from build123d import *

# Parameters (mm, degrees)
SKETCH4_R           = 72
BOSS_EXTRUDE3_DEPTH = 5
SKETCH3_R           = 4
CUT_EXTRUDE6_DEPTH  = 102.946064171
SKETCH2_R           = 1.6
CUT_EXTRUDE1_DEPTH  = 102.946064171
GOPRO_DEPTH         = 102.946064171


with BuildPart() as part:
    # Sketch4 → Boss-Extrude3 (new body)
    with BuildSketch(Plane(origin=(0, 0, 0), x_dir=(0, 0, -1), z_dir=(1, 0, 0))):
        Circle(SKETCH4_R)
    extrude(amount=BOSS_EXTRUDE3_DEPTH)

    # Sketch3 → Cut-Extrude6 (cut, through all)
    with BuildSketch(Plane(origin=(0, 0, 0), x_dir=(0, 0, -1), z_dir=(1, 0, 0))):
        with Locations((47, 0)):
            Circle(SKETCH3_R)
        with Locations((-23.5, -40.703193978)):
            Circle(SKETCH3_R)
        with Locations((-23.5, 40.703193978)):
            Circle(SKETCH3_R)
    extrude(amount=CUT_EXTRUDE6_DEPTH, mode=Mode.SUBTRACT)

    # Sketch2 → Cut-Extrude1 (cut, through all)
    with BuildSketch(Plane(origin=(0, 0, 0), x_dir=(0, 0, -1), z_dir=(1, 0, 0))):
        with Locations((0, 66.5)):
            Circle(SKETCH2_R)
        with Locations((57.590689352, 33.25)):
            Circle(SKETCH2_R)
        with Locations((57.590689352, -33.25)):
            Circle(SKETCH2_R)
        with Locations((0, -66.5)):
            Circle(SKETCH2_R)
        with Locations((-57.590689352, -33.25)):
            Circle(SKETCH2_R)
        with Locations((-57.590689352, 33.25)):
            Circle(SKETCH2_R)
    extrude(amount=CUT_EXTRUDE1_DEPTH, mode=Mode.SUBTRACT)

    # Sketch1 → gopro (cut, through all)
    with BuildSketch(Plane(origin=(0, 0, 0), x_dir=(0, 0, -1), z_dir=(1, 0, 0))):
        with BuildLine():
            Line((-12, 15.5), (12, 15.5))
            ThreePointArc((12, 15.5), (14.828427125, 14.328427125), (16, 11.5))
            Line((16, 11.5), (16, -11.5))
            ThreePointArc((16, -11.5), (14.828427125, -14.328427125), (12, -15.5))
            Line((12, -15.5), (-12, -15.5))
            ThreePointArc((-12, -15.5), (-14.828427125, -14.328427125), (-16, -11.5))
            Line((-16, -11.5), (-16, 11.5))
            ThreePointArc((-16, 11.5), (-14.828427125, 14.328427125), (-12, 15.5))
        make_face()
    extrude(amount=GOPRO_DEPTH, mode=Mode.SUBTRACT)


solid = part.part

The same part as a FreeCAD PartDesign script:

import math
import FreeCAD as App
import Part
import Sketcher
from FreeCAD import Vector

doc = App.newDocument("Part")
body = doc.addObject("PartDesign::Body", "Body")

# Sketch on YZ plane
sketch1 = body.newObject("Sketcher::SketchObject", "Sketch")
sketch1.AttachmentSupport = (doc.getObject("YZ_Plane"), [""])
sketch1.MapMode = "FlatFace"
sketch1.addGeometry(Part.Circle(Vector(0, 0, 0), Vector(0, 0, 1), 72), False)
sketch1.addConstraint([
    Sketcher.Constraint("Coincident", 0, 3, -1, 1),
    Sketcher.Constraint("Diameter", 0, 144.0),
])
pad1 = body.newObject("PartDesign::Pad", "Pad")
pad1.Profile = sketch1
pad1.Length = 5

# Sketch on YZ plane
sketch2 = body.newObject("Sketcher::SketchObject", "Sketch001")
sketch2.AttachmentSupport = (doc.getObject("YZ_Plane"), [""])
sketch2.MapMode = "FlatFace"
sketch2.addGeometry([
    Part.Circle(Vector(0, -47, 0), Vector(0, 0, 1), 4),
    Part.Circle(Vector(-40.7, 23.5, 0), Vector(0, 0, 1), 4),
    Part.Circle(Vector(40.7, 23.5, 0), Vector(0, 0, 1), 4),
], False)
sketch2.addConstraint([
    Sketcher.Constraint("Equal", 0, 1),
    Sketcher.Constraint("Equal", 1, 2),
    Sketcher.Constraint("Symmetric", 1, 3, 2, 3, -2),
    Sketcher.Constraint("PointOnObject", 0, 3, -2),
    Sketcher.Constraint("Diameter", 0, 8.0),
    Sketcher.Constraint("DistanceY", 0, 3, -1, 1, 47.0),
    Sketcher.Constraint("DistanceY", -1, 1, 1, 3, 23.5),
    Sketcher.Constraint("DistanceX", 1, 3, -1, 1, 40.703194),
])
pocket1 = body.newObject("PartDesign::Pocket", "Pocket")
pocket1.Profile = sketch2
pocket1.Type = "ThroughAll"
pocket1.Reversed = True

# Sketch on YZ plane
sketch3 = body.newObject("Sketcher::SketchObject", "Sketch002")
sketch3.AttachmentSupport = (doc.getObject("YZ_Plane"), [""])
sketch3.MapMode = "FlatFace"
sketch3.addGeometry([
    Part.Circle(Vector(66.5, 0, 0), Vector(0, 0, 1), 1.6),  # 0
    Part.Circle(Vector(33.2, -57.6, 0), Vector(0, 0, 1), 1.6),  # 1
    Part.Circle(Vector(-33.2, -57.6, 0), Vector(0, 0, 1), 1.6),  # 2
    Part.Circle(Vector(-66.5, 0, 0), Vector(0, 0, 1), 1.6),  # 3
    Part.Circle(Vector(-33.2, 57.6, 0), Vector(0, 0, 1), 1.6),  # 4
    Part.Circle(Vector(33.2, 57.6, 0), Vector(0, 0, 1), 1.6),  # 5
], False)
sketch3.addConstraint([
    Sketcher.Constraint("Equal", 0, 1),
    Sketcher.Constraint("Equal", 1, 2),
    Sketcher.Constraint("Equal", 2, 3),
    Sketcher.Constraint("Equal", 3, 4),
    Sketcher.Constraint("Equal", 4, 5),
    Sketcher.Constraint("Symmetric", 0, 3, 3, 3, -1, 1),
    Sketcher.Constraint("Symmetric", 1, 3, 4, 3, -1, 1),
    Sketcher.Constraint("Symmetric", 2, 3, 5, 3, -1, 1),
    Sketcher.Constraint("Symmetric", 1, 3, 2, 3, -2),
    Sketcher.Constraint("PointOnObject", 0, 3, -1),
    Sketcher.Constraint("Diameter", 0, 3.2),
    Sketcher.Constraint("DistanceX", 3, 3, 0, 3, 133.0),
    Sketcher.Constraint("DistanceX", 2, 3, 1, 3, 66.5),
    Sketcher.Constraint("DistanceY", 1, 3, -1, 1, 57.590689),
])
pocket2 = body.newObject("PartDesign::Pocket", "Pocket001")
pocket2.Profile = sketch3
pocket2.Type = "ThroughAll"
pocket2.Reversed = True

# Sketch on YZ plane
sketch4 = body.newObject("Sketcher::SketchObject", "Sketch003")
sketch4.AttachmentSupport = (doc.getObject("YZ_Plane"), [""])
sketch4.MapMode = "FlatFace"
sketch4.addGeometry([
    Part.LineSegment(Vector(15.5, -12, 0), Vector(15.5, 12, 0)),  # 0
    Part.ArcOfCircle(Part.Circle(Vector(11.5, 12, 0), Vector(0, 0, 1), 4), math.radians(0), math.radians(90)),  # 1
    Part.LineSegment(Vector(11.5, 16, 0), Vector(-11.5, 16, 0)),  # 2
    Part.ArcOfCircle(Part.Circle(Vector(-11.5, 12, 0), Vector(0, 0, 1), 4), math.radians(90), math.radians(180)),  # 3
    Part.LineSegment(Vector(-15.5, 12, 0), Vector(-15.5, -12, 0)),  # 4
    Part.ArcOfCircle(Part.Circle(Vector(-11.5, -12, 0), Vector(0, 0, 1), 4), math.radians(180), math.radians(270)),  # 5
    Part.LineSegment(Vector(-11.5, -16, 0), Vector(11.5, -16, 0)),  # 6
    Part.ArcOfCircle(Part.Circle(Vector(11.5, -12, 0), Vector(0, 0, 1), 4), math.radians(-90), math.radians(0)),  # 7
], False)
sketch4.addConstraint([
    Sketcher.Constraint("Tangent", 0, 2, 1, 1),
    Sketcher.Constraint("Tangent", 1, 2, 2, 1),
    Sketcher.Constraint("Tangent", 2, 2, 3, 1),
    Sketcher.Constraint("Tangent", 3, 2, 4, 1),
    Sketcher.Constraint("Tangent", 4, 2, 5, 1),
    Sketcher.Constraint("Tangent", 5, 2, 6, 1),
    Sketcher.Constraint("Tangent", 6, 2, 7, 1),
    Sketcher.Constraint("Tangent", 7, 2, 0, 1),
    Sketcher.Constraint("Vertical", 0),
    Sketcher.Constraint("Horizontal", 2),
    Sketcher.Constraint("Vertical", 4),
    Sketcher.Constraint("Horizontal", 6),
    Sketcher.Constraint("Equal", 1, 3),
    Sketcher.Constraint("Equal", 3, 5),
    Sketcher.Constraint("Equal", 5, 7),
    Sketcher.Constraint("Symmetric", 1, 3, 5, 3, -1, 1),
    Sketcher.Constraint("Radius", 1, 4.0),
    Sketcher.Constraint("DistanceX", 2, 2, 2, 1, 23.0),
    Sketcher.Constraint("DistanceY", 0, 1, 0, 2, 24.0),
])
pocket3 = body.newObject("PartDesign::Pocket", "Pocket002")
pocket3.Profile = sketch4
pocket3.Type = "ThroughAll"
pocket3.Reversed = True

doc.recompute()
